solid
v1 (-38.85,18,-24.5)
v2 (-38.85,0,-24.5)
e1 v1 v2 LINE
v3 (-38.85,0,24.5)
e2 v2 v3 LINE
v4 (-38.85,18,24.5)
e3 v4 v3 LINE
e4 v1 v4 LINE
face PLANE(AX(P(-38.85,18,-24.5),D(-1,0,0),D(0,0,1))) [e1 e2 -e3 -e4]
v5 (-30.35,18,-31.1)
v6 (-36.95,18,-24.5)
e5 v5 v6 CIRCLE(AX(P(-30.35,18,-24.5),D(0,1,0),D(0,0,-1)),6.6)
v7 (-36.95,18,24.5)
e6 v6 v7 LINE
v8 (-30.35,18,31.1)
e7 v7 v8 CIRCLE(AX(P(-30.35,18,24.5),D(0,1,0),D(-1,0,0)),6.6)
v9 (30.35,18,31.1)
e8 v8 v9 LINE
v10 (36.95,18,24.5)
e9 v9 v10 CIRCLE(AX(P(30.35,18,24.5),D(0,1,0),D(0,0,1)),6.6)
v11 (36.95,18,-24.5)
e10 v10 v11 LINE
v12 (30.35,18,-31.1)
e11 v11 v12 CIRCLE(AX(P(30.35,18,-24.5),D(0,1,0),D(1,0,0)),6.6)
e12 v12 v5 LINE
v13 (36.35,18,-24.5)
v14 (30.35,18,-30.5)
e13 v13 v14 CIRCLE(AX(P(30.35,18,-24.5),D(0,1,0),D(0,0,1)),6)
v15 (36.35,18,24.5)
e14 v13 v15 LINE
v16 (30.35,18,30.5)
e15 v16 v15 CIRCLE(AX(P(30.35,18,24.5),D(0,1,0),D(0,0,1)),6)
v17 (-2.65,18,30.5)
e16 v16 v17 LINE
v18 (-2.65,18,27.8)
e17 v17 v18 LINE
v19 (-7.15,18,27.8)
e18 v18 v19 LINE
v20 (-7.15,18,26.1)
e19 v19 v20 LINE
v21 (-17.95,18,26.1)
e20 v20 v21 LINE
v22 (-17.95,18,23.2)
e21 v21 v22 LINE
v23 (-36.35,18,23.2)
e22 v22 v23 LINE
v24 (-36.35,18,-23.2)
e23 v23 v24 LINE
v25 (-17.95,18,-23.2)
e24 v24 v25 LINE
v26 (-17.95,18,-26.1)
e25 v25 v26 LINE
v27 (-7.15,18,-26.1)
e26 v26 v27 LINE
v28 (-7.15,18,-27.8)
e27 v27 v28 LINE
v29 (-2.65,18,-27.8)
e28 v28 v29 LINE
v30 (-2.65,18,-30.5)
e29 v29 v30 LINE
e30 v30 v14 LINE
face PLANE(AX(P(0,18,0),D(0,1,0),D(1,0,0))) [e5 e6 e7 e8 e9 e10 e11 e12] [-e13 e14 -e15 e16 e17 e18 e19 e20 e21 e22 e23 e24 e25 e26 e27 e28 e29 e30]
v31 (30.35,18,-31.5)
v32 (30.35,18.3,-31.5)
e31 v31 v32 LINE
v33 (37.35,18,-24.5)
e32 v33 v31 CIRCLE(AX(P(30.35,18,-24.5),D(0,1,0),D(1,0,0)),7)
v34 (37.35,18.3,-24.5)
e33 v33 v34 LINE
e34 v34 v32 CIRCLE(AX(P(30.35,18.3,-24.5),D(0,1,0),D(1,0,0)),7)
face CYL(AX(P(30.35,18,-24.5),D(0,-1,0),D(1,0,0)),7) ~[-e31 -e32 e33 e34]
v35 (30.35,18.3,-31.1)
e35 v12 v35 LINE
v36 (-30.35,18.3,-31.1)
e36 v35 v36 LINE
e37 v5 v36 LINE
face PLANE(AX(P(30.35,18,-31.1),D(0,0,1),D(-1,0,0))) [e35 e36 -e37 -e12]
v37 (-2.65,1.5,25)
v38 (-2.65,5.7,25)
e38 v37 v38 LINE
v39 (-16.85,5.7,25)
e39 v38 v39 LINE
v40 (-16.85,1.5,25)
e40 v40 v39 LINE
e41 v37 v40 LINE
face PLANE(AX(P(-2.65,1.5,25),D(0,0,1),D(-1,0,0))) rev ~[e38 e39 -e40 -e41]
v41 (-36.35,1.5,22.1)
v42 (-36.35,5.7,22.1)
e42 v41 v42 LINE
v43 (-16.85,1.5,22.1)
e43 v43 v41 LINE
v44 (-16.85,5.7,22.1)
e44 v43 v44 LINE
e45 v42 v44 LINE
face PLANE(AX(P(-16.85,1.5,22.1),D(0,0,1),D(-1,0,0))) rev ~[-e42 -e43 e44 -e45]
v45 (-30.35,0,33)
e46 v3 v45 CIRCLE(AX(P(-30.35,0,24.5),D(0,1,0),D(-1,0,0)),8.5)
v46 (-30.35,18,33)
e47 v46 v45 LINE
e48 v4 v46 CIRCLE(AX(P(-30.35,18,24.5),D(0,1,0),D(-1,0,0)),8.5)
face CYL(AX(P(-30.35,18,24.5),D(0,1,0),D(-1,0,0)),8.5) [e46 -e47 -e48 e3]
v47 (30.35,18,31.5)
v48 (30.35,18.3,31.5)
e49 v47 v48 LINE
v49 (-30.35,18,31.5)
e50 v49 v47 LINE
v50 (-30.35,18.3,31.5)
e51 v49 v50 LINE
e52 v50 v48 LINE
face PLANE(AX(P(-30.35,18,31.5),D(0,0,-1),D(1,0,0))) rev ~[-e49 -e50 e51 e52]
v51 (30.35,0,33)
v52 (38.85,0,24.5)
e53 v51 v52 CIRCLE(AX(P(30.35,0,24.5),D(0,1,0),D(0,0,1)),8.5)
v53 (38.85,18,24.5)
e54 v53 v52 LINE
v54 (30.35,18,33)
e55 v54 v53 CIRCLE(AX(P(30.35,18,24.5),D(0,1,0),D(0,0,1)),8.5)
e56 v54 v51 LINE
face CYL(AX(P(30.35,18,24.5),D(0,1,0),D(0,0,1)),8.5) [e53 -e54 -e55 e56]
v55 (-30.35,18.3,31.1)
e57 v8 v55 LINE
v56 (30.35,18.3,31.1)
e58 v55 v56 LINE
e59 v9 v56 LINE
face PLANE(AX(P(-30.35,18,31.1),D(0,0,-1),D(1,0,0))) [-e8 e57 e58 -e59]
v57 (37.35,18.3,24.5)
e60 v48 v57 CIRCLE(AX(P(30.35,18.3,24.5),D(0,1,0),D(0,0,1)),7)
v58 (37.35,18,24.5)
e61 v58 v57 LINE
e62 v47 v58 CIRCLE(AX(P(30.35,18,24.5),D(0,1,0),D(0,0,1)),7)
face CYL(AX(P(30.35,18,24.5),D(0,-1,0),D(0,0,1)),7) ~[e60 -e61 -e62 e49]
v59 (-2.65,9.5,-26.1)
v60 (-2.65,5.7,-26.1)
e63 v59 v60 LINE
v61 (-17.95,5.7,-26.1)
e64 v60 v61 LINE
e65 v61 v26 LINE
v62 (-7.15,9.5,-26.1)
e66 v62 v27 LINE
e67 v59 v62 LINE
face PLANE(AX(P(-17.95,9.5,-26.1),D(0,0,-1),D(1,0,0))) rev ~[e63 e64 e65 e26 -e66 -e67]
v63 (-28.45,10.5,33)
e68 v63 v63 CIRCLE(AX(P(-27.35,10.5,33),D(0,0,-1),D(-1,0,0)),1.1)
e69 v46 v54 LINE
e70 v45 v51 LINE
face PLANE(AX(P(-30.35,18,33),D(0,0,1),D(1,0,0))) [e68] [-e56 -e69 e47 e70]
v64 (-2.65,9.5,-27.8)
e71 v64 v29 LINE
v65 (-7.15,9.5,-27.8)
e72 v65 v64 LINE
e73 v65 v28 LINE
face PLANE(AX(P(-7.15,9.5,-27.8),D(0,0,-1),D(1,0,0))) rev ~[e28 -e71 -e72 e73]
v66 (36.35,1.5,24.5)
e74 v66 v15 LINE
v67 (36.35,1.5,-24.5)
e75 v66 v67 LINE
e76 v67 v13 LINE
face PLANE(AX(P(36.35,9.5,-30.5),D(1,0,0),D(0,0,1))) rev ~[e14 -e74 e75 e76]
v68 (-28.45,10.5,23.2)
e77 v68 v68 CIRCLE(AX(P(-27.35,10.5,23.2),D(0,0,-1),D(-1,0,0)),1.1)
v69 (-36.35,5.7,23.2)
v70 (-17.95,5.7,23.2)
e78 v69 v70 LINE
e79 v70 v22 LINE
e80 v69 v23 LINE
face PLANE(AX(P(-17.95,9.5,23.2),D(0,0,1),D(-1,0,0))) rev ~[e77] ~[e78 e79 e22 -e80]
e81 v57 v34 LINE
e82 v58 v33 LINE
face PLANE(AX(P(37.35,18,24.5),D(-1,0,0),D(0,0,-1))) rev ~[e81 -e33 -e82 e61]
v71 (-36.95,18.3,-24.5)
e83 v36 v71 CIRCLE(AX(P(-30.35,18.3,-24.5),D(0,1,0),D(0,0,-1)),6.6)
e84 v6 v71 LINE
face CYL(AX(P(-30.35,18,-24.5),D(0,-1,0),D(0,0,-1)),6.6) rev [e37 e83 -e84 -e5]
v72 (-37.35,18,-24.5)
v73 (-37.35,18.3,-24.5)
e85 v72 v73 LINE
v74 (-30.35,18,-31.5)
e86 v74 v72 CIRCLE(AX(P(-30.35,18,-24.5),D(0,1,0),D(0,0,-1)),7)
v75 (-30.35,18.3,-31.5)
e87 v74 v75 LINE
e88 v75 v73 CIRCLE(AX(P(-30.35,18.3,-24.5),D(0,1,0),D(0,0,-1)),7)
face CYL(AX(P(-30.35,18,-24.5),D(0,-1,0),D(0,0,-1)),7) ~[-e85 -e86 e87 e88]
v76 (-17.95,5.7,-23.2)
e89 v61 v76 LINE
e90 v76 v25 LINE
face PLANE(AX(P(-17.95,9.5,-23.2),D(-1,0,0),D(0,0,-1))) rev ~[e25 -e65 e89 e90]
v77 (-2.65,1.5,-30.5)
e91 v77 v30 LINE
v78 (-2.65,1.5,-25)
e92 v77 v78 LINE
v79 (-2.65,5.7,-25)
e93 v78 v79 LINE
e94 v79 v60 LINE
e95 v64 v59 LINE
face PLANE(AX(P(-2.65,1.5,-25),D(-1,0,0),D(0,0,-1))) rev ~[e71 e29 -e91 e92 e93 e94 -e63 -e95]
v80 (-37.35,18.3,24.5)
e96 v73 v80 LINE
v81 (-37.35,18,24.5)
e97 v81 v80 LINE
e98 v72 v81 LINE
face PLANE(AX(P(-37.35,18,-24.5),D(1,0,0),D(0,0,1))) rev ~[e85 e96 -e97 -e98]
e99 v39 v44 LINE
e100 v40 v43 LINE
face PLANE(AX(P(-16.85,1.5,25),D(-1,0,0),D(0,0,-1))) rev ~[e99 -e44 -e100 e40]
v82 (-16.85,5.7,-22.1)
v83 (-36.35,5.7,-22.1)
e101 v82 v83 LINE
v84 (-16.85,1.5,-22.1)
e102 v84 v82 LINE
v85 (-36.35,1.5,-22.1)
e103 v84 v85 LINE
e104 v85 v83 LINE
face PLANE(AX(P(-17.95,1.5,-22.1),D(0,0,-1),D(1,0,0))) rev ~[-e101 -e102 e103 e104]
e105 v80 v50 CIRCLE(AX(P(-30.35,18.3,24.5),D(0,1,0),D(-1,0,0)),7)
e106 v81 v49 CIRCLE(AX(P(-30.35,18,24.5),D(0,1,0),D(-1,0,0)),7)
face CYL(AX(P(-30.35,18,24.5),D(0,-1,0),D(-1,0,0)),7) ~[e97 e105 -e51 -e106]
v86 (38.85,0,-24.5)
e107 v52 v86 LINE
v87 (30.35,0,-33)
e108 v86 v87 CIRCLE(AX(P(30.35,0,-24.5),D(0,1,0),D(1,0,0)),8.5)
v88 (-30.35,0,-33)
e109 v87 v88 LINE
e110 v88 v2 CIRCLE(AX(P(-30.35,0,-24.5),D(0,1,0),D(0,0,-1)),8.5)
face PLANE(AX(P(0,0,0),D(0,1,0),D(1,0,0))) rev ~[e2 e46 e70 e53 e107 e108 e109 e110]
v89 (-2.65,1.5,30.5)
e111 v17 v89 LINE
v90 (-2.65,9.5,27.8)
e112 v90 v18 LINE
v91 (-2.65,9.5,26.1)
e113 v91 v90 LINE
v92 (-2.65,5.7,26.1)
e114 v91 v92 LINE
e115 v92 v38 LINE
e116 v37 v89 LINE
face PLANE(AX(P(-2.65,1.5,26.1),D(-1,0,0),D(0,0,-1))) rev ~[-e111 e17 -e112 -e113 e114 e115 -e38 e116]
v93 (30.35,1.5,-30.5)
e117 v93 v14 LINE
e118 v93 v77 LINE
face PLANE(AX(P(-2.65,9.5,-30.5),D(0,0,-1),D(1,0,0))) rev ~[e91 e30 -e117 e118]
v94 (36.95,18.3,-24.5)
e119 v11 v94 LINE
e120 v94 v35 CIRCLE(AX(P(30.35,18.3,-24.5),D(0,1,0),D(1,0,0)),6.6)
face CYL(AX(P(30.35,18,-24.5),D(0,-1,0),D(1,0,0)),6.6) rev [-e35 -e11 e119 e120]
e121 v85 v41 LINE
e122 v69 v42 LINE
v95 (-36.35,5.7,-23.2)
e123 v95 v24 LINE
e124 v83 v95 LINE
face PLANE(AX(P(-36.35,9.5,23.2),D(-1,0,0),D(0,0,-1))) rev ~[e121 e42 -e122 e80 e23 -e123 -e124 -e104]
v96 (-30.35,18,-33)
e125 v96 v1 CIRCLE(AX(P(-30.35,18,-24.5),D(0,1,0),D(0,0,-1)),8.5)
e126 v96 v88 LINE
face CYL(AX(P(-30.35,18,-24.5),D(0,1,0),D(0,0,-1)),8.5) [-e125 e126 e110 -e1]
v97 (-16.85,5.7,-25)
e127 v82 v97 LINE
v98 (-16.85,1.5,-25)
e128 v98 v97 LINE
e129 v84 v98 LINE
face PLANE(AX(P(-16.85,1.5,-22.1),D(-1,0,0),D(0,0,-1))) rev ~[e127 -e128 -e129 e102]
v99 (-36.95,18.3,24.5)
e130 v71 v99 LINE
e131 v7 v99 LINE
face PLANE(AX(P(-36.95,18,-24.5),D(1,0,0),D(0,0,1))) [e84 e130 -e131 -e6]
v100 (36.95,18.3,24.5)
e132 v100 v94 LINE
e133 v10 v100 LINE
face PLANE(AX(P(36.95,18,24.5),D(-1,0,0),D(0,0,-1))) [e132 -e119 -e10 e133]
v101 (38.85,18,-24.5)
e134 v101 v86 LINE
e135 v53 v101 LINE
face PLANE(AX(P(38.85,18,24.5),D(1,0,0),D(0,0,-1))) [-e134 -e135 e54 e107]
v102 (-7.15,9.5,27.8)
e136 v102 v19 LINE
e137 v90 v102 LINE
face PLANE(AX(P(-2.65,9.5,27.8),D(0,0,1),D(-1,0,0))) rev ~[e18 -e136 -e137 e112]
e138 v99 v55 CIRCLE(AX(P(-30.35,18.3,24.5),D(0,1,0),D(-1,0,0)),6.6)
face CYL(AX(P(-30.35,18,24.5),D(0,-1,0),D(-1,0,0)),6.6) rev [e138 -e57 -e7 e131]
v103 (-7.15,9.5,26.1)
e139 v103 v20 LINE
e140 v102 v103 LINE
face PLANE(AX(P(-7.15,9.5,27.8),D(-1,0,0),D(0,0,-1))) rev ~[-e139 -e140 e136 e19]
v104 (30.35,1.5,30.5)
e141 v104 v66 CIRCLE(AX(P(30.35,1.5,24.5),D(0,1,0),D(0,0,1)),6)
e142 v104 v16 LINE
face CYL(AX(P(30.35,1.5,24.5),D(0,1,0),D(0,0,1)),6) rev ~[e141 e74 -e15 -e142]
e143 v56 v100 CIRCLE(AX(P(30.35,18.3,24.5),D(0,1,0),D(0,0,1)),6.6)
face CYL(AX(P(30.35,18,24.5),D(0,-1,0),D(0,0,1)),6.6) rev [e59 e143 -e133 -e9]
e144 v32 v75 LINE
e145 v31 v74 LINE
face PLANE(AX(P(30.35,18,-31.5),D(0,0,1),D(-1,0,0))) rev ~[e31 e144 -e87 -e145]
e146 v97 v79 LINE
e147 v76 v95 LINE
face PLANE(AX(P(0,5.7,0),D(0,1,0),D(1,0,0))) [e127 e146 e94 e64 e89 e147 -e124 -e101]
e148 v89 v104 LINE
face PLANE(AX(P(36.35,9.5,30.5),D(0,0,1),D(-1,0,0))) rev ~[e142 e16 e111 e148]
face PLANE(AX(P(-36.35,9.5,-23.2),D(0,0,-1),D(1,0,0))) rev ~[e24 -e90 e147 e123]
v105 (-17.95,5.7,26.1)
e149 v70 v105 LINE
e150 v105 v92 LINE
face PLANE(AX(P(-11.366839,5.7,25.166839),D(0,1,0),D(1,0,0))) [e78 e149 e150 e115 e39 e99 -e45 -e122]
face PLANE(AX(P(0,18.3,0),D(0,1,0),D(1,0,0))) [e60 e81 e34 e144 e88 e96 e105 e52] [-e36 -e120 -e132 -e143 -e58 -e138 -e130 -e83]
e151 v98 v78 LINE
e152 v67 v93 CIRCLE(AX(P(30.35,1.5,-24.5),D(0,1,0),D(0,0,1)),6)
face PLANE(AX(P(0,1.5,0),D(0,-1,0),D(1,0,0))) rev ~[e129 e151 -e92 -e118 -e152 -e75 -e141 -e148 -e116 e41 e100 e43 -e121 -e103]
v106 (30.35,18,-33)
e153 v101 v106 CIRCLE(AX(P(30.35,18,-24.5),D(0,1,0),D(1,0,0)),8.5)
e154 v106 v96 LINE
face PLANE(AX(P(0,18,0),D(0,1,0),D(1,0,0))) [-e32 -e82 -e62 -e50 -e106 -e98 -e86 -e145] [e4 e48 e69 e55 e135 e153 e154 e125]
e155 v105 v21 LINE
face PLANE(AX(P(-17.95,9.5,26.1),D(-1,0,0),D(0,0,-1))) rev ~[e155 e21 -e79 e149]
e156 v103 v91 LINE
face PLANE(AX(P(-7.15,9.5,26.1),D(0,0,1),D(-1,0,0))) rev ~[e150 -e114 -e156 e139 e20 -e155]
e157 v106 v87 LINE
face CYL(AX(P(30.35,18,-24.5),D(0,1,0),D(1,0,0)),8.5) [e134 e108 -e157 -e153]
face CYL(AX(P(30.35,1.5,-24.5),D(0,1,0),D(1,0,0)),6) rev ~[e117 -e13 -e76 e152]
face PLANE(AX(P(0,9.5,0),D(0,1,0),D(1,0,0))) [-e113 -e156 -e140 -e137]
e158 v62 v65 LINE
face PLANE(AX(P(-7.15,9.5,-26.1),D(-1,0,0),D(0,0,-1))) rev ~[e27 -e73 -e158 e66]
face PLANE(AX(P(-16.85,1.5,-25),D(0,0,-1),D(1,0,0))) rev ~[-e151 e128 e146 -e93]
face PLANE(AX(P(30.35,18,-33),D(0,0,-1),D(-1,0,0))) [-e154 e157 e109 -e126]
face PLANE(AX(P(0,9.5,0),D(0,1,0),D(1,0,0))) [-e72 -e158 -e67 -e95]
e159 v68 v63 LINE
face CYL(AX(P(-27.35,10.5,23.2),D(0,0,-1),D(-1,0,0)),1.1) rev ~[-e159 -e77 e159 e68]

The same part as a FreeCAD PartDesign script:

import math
import FreeCAD as App
import Part
import Sketcher
from FreeCAD import Vector
Q = App.Units.Quantity


def edges_at(feature, points):
    """Names of the edges that pass closest to the given points."""
    edges = feature.Shape.Edges
    near = lambda p: min(range(len(edges)), key=lambda i: edges[i].distToShape(Part.Vertex(*p))[0])
    return sorted({f"Edge{near(p) + 1}" for p in points})

doc = App.newDocument("Part")
body = doc.addObject("PartDesign::Body", "Body")

sketch1 = body.newObject("Sketcher::SketchObject", "Sketch")
sketch1.AttachmentSupport = (doc.getObject("XZ_Plane"), [""])
sketch1.MapMode = "FlatFace"
sketch1.addGeometry([
    Part.LineSegment(Vector(-36, -30, 0), Vector(-36, 30, 0)),
    Part.LineSegment(Vector(-36, 30, 0), Vector(36, 30, 0)),
    Part.LineSegment(Vector(36, 30, 0), Vector(36, -30, 0)),
    Part.LineSegment(Vector(36, -30, 0), Vector(-36, -30, 0)),
], False)
sketch1.addConstraint([
    Sketcher.Constraint("Coincident", 0, 2, 1, 1),
    Sketcher.Constraint("Coincident", 1, 2, 2, 1),
    Sketcher.Constraint("Coincident", 2, 2, 3, 1),
    Sketcher.Constraint("Coincident", 3, 2, 0, 1),
    Sketcher.Constraint("Vertical", 0),
    Sketcher.Constraint("Horizontal", 1),
    Sketcher.Constraint("Vertical", 2),
    Sketcher.Constraint("Horizontal", 3),
    Sketcher.Constraint("Symmetric", 0, 2, 2, 2, -1, 1),
    Sketcher.Constraint("DistanceY", 0, 1, 0, 2, Q("61 mm")),
    Sketcher.Constraint("DistanceX", 1, 1, 1, 2, Q("72.7 mm")),
])
pad1 = body.newObject("PartDesign::Pad", "Pad")
pad1.Profile = sketch1
pad1.Length = 1.5
pad1.Reversed = True

sketch2 = body.newObject("Sketcher::SketchObject", "Sketch001")
sketch2.AttachmentSupport = (doc.getObject("XZ_Plane"), [""])
sketch2.MapMode = "FlatFace"
sketch2.addGeometry([
    Part.LineSegment(Vector(-38, 32, 0), Vector(-38, -32, 0)),
    Part.LineSegment(Vector(-38, -32, 0), Vector(38, -32, 0)),
    Part.LineSegment(Vector(38, -32, 0), Vector(38, 32, 0)),
    Part.LineSegment(Vector(38, 32, 0), Vector(-38, 32, 0)),
], False)
sketch2.addConstraint([
    Sketcher.Constraint("Coincident", 0, 2, 1, 1),
    Sketcher.Constraint("Coincident", 1, 2, 2, 1),
    Sketcher.Constraint("Coincident", 2, 2, 3, 1),
    Sketcher.Constraint("Coincident", 3, 2, 0, 1),
    Sketcher.Constraint("Vertical", 0),
    Sketcher.Constraint("Horizontal", 1),
    Sketcher.Constraint("Vertical", 2),
    Sketcher.Constraint("Horizontal", 3),
    Sketcher.Constraint("Symmetric", 0, 2, 2, 2, -1, 1),
    Sketcher.Constraint("DistanceY", 0, 2, 0, 1, Q("65 mm")),
    Sketcher.Constraint("DistanceX", 1, 1, 1, 2, Q("76.7 mm")),
])
pad2 = body.newObject("PartDesign::Pad", "Pad001")
pad2.Profile = sketch2
pad2.Length = 1.5
pad2.Reversed = True

sketch3 = body.newObject("Sketcher::SketchObject", "Sketch002")
sketch3.AttachmentSupport = (doc.getObject("XZ_Plane"), [""])
sketch3.MapMode = "FlatFace"
sketch3.AttachmentOffset = App.Placement(Vector(0, 0, -1.5), App.Rotation())
sketch3.addGeometry([
    Part.LineSegment(Vector(-38.4, -32.5, 0), Vector(-38.4, 32.5, 0)),
    Part.LineSegment(Vector(-38.4, 32.5, 0), Vector(38.4, 32.5, 0)),
    Part.LineSegment(Vector(38.4, 32.5, 0), Vector(38.4, -32.5, 0)),
    Part.LineSegment(Vector(38.4, -32.5, 0), Vector(-38.4, -32.5, 0)),
    Part.LineSegment(Vector(-2.6, -22.1, 0), Vector(-2.6, -30.5, 0)),
    Part.LineSegment(Vector(-2.6, -30.5, 0), Vector(36.4, -30.5, 0)),
    Part.LineSegment(Vector(36.4, -30.5, 0), Vector(36.4, 30.5, 0)),
    Part.LineSegment(Vector(36.4, 30.5, 0), Vector(-2.6, 30.5, 0)),
    Part.LineSegment(Vector(-2.6, 30.5, 0), Vector(-2.6, 22.1, 0)),
    Part.LineSegment(Vector(-2.6, 22.1, 0), Vector(-3.9, 22.1, 0)),
    Part.LineSegment(Vector(-3.9, 22.1, 0), Vector(-3.9, 26.1, 0)),
    Part.LineSegment(Vector(-3.9, 26.1, 0), Vector(-17.9, 26.1, 0)),
    Part.LineSegment(Vector(-17.9, 26.1, 0), Vector(-17.9, 22.1, 0)),
    Part.LineSegment(Vector(-17.9, 22.1, 0), Vector(-36.4, 22.1, 0)),
    Part.LineSegment(Vector(-36.4, 22.1, 0), Vector(-36.4, -22.1, 0)),
    Part.LineSegment(Vector(-36.4, -22.1, 0), Vector(-17.9, -22.1, 0)),
    Part.LineSegment(Vector(-17.9, -22.1, 0), Vector(-17.9, -26.1, 0)),
    Part.LineSegment(Vector(-17.9, -26.1, 0), Vector(-3.9, -26.1, 0)),
    Part.LineSegment(Vector(-3.9, -26.1, 0), Vector(-3.9, -22.1, 0)),
    Part.LineSegment(Vector(-3.9, -22.1, 0), Vector(-2.6, -22.1, 0)),
], False)
sketch3.addConstraint([
    Sketcher.Constraint("Coincident", 0, 2, 1, 1),
    Sketcher.Constraint("Coincident", 1, 2, 2, 1),
    Sketcher.Constraint("Coincident", 2, 2, 3, 1),
    Sketcher.Constraint("Coincident", 3, 2, 0, 1),
    Sketcher.Constraint("Coincident", 4, 2, 5, 1),
    Sketcher.Constraint("Coincident", 5, 2, 6, 1),
    Sketcher.Constraint("Coincident", 6, 2, 7, 1),
    Sketcher.Constraint("Coincident", 7, 2, 8, 1),
    Sketcher.Constraint("Coincident", 8, 2, 9, 1),
    Sketcher.Constraint("Coincident", 9, 2, 10, 1),
    Sketcher.Constraint("Coincident", 10, 2, 11, 1),
    Sketcher.Constraint("Coincident", 11, 2, 12, 1),
    Sketcher.Constraint("Coincident", 12, 2, 13, 1),
    Sketcher.Constraint("Coincident", 13, 2, 14, 1),
    Sketcher.Constraint("Coincident", 14, 2, 15, 1),
    Sketcher.Constraint("Coincident", 15, 2, 16, 1),
    Sketcher.Constraint("Coincident", 16, 2, 17, 1),
    Sketcher.Constraint("Coincident", 17, 2, 18, 1),
    Sketcher.Constraint("Coincident", 18, 2, 19, 1),
    Sketcher.Constraint("Coincident", 19, 2, 4, 1),
    Sketcher.Constraint("Vertical", 0),
    Sketcher.Constraint("Horizontal", 1),
    Sketcher.Constraint("Vertical", 2),
    Sketcher.Constraint("Horizontal", 3),
    Sketcher.Constraint("Vertical", 4),
    Sketcher.Constraint("Horizontal", 5),
    Sketcher.Constraint("Vertical", 6),
    Sketcher.Constraint("Horizontal", 7),
    Sketcher.Constraint("Vertical", 8),
    Sketcher.Constraint("Horizontal", 9),
    Sketcher.Constraint("Vertical", 10),
    Sketcher.Constraint("Horizontal", 11),
    Sketcher.Constraint("Vertical", 12),
    Sketcher.Constraint("Horizontal", 13),
    Sketcher.Constraint("Vertical", 14),
    Sketcher.Constraint("Horizontal", 15),
    Sketcher.Constraint("Vertical", 16),
    Sketcher.Constraint("Horizontal", 17),
    Sketcher.Constraint("Vertical", 18),
    Sketcher.Constraint("Horizontal", 19),
    Sketcher.Constraint("Symmetric", 0, 2, 2, 2, -1, 1),
    Sketcher.Constraint("Symmetric", 4, 2, 7, 2, -1),
    Sketcher.Constraint("Symmetric", 12, 2, 15, 2, -1),
    Sketcher.Constraint("Symmetric", 10, 2, 17, 2, -1),
    Sketcher.Constraint("Horizontal", 9, 2, 12, 2),
    Sketcher.Constraint("Horizontal", 15, 2, 18, 2),
    Sketcher.Constraint("DistanceX", 5, 1, 5, 2, Q("39 mm")),
    Sketcher.Constraint("DistanceY", 0, 1, 0, 2, Q("65 mm")),
    Sketcher.Constraint("DistanceY", 6, 1, 6, 2, Q("61 mm")),
    Sketcher.Constraint("DistanceY", 10, 1, 10, 2, Q("4 mm")),
    Sketcher.Constraint("DistanceX", 1, 1, 1, 2, Q("76.7 mm")),
    Sketcher.Constraint("DistanceX", 9, 2, 9, 1, Q("1.2 mm")),
    Sketcher.Constraint("DistanceX", 11, 2, 11, 1, Q("14.1 mm")),
    Sketcher.Constraint("DistanceX", 13, 2, 13, 1, Q("18.4 mm")),
    Sketcher.Constraint("DistanceY", 4, 2, 4, 1, Q("8.4 mm")),
    Sketcher.Constraint("DistanceX", 4, 2, 2, 2, Q("41 mm")),
])
pad3 = body.newObject("PartDesign::Pad", "Pad002")
pad3.Profile = sketch3
pad3.Length = 4.2
pad3.Reversed = True

sketch4 = body.newObject("Sketcher::SketchObject", "Sketch003")
sketch4.AttachmentSupport = (doc.getObject("XZ_Plane"), [""])
sketch4.MapMode = "FlatFace"
sketch4.AttachmentOffset = App.Placement(Vector(0, 0, -5.7), App.Rotation())
sketch4.addGeometry([
    Part.LineSegment(Vector(-38.4, -32.5, 0), Vector(-38.4, 32.5, 0)),
    Part.LineSegment(Vector(-38.4, 32.5, 0), Vector(38.4, 32.5, 0)),
    Part.LineSegment(Vector(38.4, 32.5, 0), Vector(38.4, -32.5, 0)),
    Part.LineSegment(Vector(38.4, -32.5, 0), Vector(-38.4, -32.5, 0)),
    Part.LineSegment(Vector(-36.4, 23.2, 0), Vector(-36.4, -23.2, 0)),
    Part.LineSegment(Vector(-36.4, -23.2, 0), Vector(-17.9, -23.2, 0)),
    Part.LineSegment(Vector(-17.9, -23.2, 0), Vector(-17.9, -26.1, 0)),
    Part.LineSegment(Vector(-17.9, -26.1, 0), Vector(-3.9, -26.1, 0)),
    Part.LineSegment(Vector(-3.9, -26.1, 0), Vector(-3.9, -22.1, 0)),
    Part.LineSegment(Vector(-3.9, -22.1, 0), Vector(-2.6, -22.1, 0)),
    Part.LineSegment(Vector(-2.6, -22.1, 0), Vector(-2.6, -30.5, 0)),
    Part.LineSegment(Vector(-2.6, -30.5, 0), Vector(36.4, -30.5, 0)),
    Part.LineSegment(Vector(36.4, -30.5, 0), Vector(36.4, 30.5, 0)),
    Part.LineSegment(Vector(36.4, 30.5, 0), Vector(-2.6, 30.5, 0)),
    Part.LineSegment(Vector(-2.6, 30.5, 0), Vector(-2.6, 22.1, 0)),
    Part.LineSegment(Vector(-2.6, 22.1, 0), Vector(-3.9, 22.1, 0)),
    Part.LineSegment(Vector(-3.9, 22.1, 0), Vector(-3.9, 26.1, 0)),
    Part.LineSegment(Vector(-3.9, 26.1, 0), Vector(-17.9, 26.1, 0)),
    Part.LineSegment(Vector(-17.9, 26.1, 0), Vector(-17.9, 23.2, 0)),
    Part.LineSegment(Vector(-17.9, 23.2, 0), Vector(-36.4, 23.2, 0)),
], False)
sketch4.addConstraint([
    Sketcher.Constraint("Coincident", 0, 2, 1, 1),
    Sketcher.Constraint("Coincident", 1, 2, 2, 1),
    Sketcher.Constraint("Coincident", 2, 2, 3, 1),
    Sketcher.Constraint("Coincident", 3, 2, 0, 1),
    Sketcher.Constraint("Coincident", 4, 2, 5, 1),
    Sketcher.Constraint("Coincident", 5, 2, 6, 1),
    Sketcher.Constraint("Coincident", 6, 2, 7, 1),
    Sketcher.Constraint("Coincident", 7, 2, 8, 1),
    Sketcher.Constraint("Coincident", 8, 2, 9, 1),
    Sketcher.Constraint("Coincident", 9, 2, 10, 1),
    Sketcher.Constraint("Coincident", 10, 2, 11, 1),
    Sketcher.Constraint("Coincident", 11, 2, 12, 1),
    Sketcher.Constraint("Coincident", 12, 2, 13, 1),
    Sketcher.Constraint("Coincident", 13, 2, 14, 1),
    Sketcher.Constraint("Coincident", 14, 2, 15, 1),
    Sketcher.Constraint("Coincident", 15, 2, 16, 1),
    Sketcher.Constraint("Coincident", 16, 2, 17, 1),
    Sketcher.Constraint("Coincident", 17, 2, 18, 1),
    Sketcher.Constraint("Coincident", 18, 2, 19, 1),
    Sketcher.Constraint("Coincident", 19, 2, 4, 1),
    Sketcher.Constraint("Vertical", 0),
    Sketcher.Constraint("Horizontal", 1),
    Sketcher.Constraint("Vertical", 2),
    Sketcher.Constraint("Horizontal", 3),
    Sketcher.Constraint("Vertical", 4),
    Sketcher.Constraint("Horizontal", 5),
    Sketcher.Constraint("Vertical", 6),
    Sketcher.Constraint("Horizontal", 7),
    Sketcher.Constraint("Vertical", 8),
    Sketcher.Constraint("Horizontal", 9),
    Sketcher.Constraint("Vertical", 10),
    Sketcher.Constraint("Horizontal", 11),
    Sketcher.Constraint("Vertical", 12),
    Sketcher.Constraint("Horizontal", 13),
    Sketcher.Constraint("Vertical", 14),
    Sketcher.Constraint("Horizontal", 15),
    Sketcher.Constraint("Vertical", 16),
    Sketcher.Constraint("Horizontal", 17),
    Sketcher.Constraint("Vertical", 18),
    Sketcher.Constraint("Horizontal", 19),
    Sketcher.Constraint("Symmetric", 0, 2, 2, 2, -1, 1),
    Sketcher.Constraint("Symmetric", 10, 2, 13, 2, -1),
    Sketcher.Constraint("Symmetric", 8, 2, 15, 2, -1),
    Sketcher.Constraint("Symmetric", 6, 2, 17, 2, -1),
    Sketcher.Constraint("Equal", 6, 18),
    Sketcher.Constraint("DistanceX", 11, 1, 11, 2, Q("39 mm")),
    Sketcher.Constraint("DistanceY", 0, 1, 0, 2, Q("65 mm")),
    Sketcher.Constraint("DistanceY", 8, 1, 8, 2, Q("4 mm")),
    Sketcher.Constraint("DistanceY", 12, 1, 12, 2, Q("61 mm")),
    Sketcher.Constraint("DistanceX", 1, 1, 1, 2, Q("76.7 mm")),
    Sketcher.Constraint("DistanceX", 5, 1, 5, 2, Q("18.4 mm")),
    Sketcher.Constraint("DistanceX", 7, 1, 7, 2, Q("14.1 mm")),
    Sketcher.Constraint("DistanceX", 9, 1, 9, 2, Q("1.2 mm")),
    Sketcher.Constraint("DistanceY", 4, 2, 4, 1, Q("46.4 mm")),
    Sketcher.Constraint("DistanceY", 6, 2, 6, 1, Q("2.9 mm")),
    Sketcher.Constraint("DistanceX", 3, 2, 4, 2, Q("2 mm")),
])
pad4 = body.newObject("PartDesign::Pad", "Pad003")
pad4.Profile = sketch4
pad4.Length = 3.8
pad4.Reversed = True

sketch5 = body.newObject("Sketcher::SketchObject", "Sketch004")
sketch5.AttachmentSupport = (doc.getObject("XZ_Plane"), [""])
sketch5.MapMode = "FlatFace"
sketch5.AttachmentOffset = App.Placement(Vector(0, 0, -9.5), App.Rotation())
sketch5.addGeometry([
    Part.LineSegment(Vector(-38.4, -32.5, 0), Vector(-38.4, 32.5, 0)),
    Part.LineSegment(Vector(-38.4, 32.5, 0), Vector(38.4, 32.5, 0)),
    Part.LineSegment(Vector(38.4, 32.5, 0), Vector(38.4, -32.5, 0)),
    Part.LineSegment(Vector(38.4, -32.5, 0), Vector(-38.4, -32.5, 0)),
    Part.LineSegment(Vector(-2.6, 30.5, 0), Vector(-2.6, 27.8, 0)),
    Part.LineSegment(Vector(-2.6, 27.8, 0), Vector(-7.2, 27.8, 0)),
    Part.LineSegment(Vector(-7.2, 27.8, 0), Vector(-7.2, 26.1, 0)),
    Part.LineSegment(Vector(-7.2, 26.1, 0), Vector(-17.9, 26.1, 0)),
    Part.LineSegment(Vector(-17.9, 26.1, 0), Vector(-17.9, 23.2, 0)),
    Part.LineSegment(Vector(-17.9, 23.2, 0), Vector(-36.4, 23.2, 0)),
    Part.LineSegment(Vector(-36.4, 23.2, 0), Vector(-36.4, -23.2, 0)),
    Part.LineSegment(Vector(-36.4, -23.2, 0), Vector(-17.9, -23.2, 0)),
    Part.LineSegment(Vector(-17.9, -23.2, 0), Vector(-17.9, -26.1, 0)),
    Part.LineSegment(Vector(-17.9, -26.1, 0), Vector(-7.2, -26.1, 0)),
    Part.LineSegment(Vector(-7.2, -26.1, 0), Vector(-7.2, -27.8, 0)),
    Part.LineSegment(Vector(-7.2, -27.8, 0), Vector(-2.6, -27.8, 0)),
    Part.LineSegment(Vector(-2.6, -27.8, 0), Vector(-2.6, -30.5, 0)),
    Part.LineSegment(Vector(-2.6, -30.5, 0), Vector(36.4, -30.5, 0)),
    Part.LineSegment(Vector(36.4, -30.5, 0), Vector(36.4, 30.5, 0)),
    Part.LineSegment(Vector(36.4, 30.5, 0), Vector(-2.6, 30.5, 0)),
], False)
sketch5.addConstraint([
    Sketcher.Constraint("Coincident", 0, 2, 1, 1),
    Sketcher.Constraint("Coincident", 1, 2, 2, 1),
    Sketcher.Constraint("Coincident", 2, 2, 3, 1),
    Sketcher.Constraint("Coincident", 3, 2, 0, 1),
    Sketcher.Constraint("Coincident", 4, 2, 5, 1),
    Sketcher.Constraint("Coincident", 5, 2, 6, 1),
    Sketcher.Constraint("Coincident", 6, 2, 7, 1),
    Sketcher.Constraint("Coincident", 7, 2, 8, 1),
    Sketcher.Constraint("Coincident", 8, 2, 9, 1),
    Sketcher.Constraint("Coincident", 9, 2, 10, 1),
    Sketcher.Constraint("Coincident", 10, 2, 11, 1),
    Sketcher.Constraint("Coincident", 11, 2, 12, 1),
    Sketcher.Constraint("Coincident", 12, 2, 13, 1),
    Sketcher.Constraint("Coincident", 13, 2, 14, 1),
    Sketcher.Constraint("Coincident", 14, 2, 15, 1),
    Sketcher.Constraint("Coincident", 15, 2, 16, 1),
    Sketcher.Constraint("Coincident", 16, 2, 17, 1),
    Sketcher.Constraint("Coincident", 17, 2, 18, 1),
    Sketcher.Constraint("Coincident", 18, 2, 19, 1),
    Sketcher.Constraint("Coincident", 19, 2, 4, 1),
    Sketcher.Constraint("Vertical", 0),
    Sketcher.Constraint("Horizontal", 1),
    Sketcher.Constraint("Vertical", 2),
    Sketcher.Constraint("Horizontal", 3),
    Sketcher.Constraint("Vertical", 4),
    Sketcher.Constraint("Horizontal", 5),
    Sketcher.Constraint("Vertical", 6),
    Sketcher.Constraint("Horizontal", 7),
    Sketcher.Constraint("Vertical", 8),
    Sketcher.Constraint("Horizontal", 9),
    Sketcher.Constraint("Vertical", 10),
    Sketcher.Constraint("Horizontal", 11),
    Sketcher.Constraint("Vertical", 12),
    Sketcher.Constraint("Horizontal", 13),
    Sketcher.Constraint("Vertical", 14),
    Sketcher.Constraint("Horizontal", 15),
    Sketcher.Constraint("Vertical", 16),
    Sketcher.Constraint("Horizontal", 17),
    Sketcher.Constraint("Vertical", 18),
    Sketcher.Constraint("Horizontal", 19),
    Sketcher.Constraint("Symmetric", 0, 2, 2, 2, -1, 1),
    Sketcher.Constraint("Symmetric", 8, 2, 11, 2, -1),
    Sketcher.Constraint("Symmetric", 6, 2, 13, 2, -1),
    Sketcher.Constraint("Symmetric", 4, 2, 15, 2, -1),
    Sketcher.Constraint("Equal", 4, 16),
    Sketcher.Constraint("DistanceX", 17, 1, 17, 2, Q("39 mm")),
    Sketcher.Constraint("DistanceY", 0, 1, 0, 2, Q("65 mm")),
    Sketcher.Constraint("DistanceY", 18, 1, 18, 2, Q("61 mm")),
    Sketcher.Constraint("DistanceX", 1, 1, 1, 2, Q("76.7 mm")),
    Sketcher.Constraint("DistanceX", 5, 2, 5, 1, Q("4.5 mm")),
    Sketcher.Constraint("DistanceX", 7, 2, 7, 1, Q("10.8 mm")),
    Sketcher.Constraint("DistanceX", 9, 2, 9, 1, Q("18.4 mm")),
    Sketcher.Constraint("DistanceY", 4, 2, 4, 1, Q("2.7 mm")),
    Sketcher.Constraint("DistanceY", 6, 2, 6, 1, Q("1.7 mm")),
    Sketcher.Constraint("DistanceY", 8, 2, 8, 1, Q("2.9 mm")),
    Sketcher.Constraint("DistanceX", 4, 2, 1, 2, Q("41 mm")),
])
pad5 = body.newObject("PartDesign::Pad", "Pad004")
pad5.Profile = sketch5
pad5.Length = 8.5
pad5.Reversed = True

sketch6 = body.newObject("Sketcher::SketchObject", "Sketch005")
sketch6.AttachmentSupport = (doc.getObject("XY_Plane"), [""])
sketch6.MapMode = "FlatFace"
sketch6.AttachmentOffset = App.Placement(Vector(0, 0, 23.2), App.Rotation())
sketch6.addGeometry(Part.Circle(Vector(-27.4, 10.5, 0), Vector(0, 0, 1), 1.1), False)
sketch6.addConstraint([
    Sketcher.Constraint("Diameter", 0, Q("2.2 mm")),
    Sketcher.Constraint("DistanceY", -1, 1, 0, 3, Q("10.5 mm")),
    Sketcher.Constraint("DistanceX", 0, 3, -1, 1, Q("27.35 mm")),
])
pocket1 = body.newObject("PartDesign::Pocket", "Pocket")
pocket1.Profile = sketch6
pocket1.Length = 20.8
pocket1.Reversed = True
doc.recompute()

fillet = body.newObject("PartDesign::Fillet", "Fillet")
fillet.Base = (pocket1, edges_at(pocket1, [(-38.35, 9, -32.5), (-38.35, 9, 32.5)]))
fillet.Radius = 8

sketch7 = body.newObject("Sketcher::SketchObject", "Sketch006")
sketch7.AttachmentSupport = (doc.getObject("XZ_Plane"), [""])
sketch7.MapMode = "FlatFace"
sketch7.AttachmentOffset = App.Placement(Vector(0, 0, -9.5), App.Rotation())
sketch7.addGeometry([
    Part.LineSegment(Vector(-3.9, -26.1, 0), Vector(-3.9, -22.1, 0)),
    Part.LineSegment(Vector(-3.9, -22.1, 0), Vector(-2.6, -22.1, 0)),
    Part.LineSegment(Vector(-2.6, -22.1, 0), Vector(-2.6, -26.1, 0)),
    Part.LineSegment(Vector(-2.6, -26.1, 0), Vector(-3.9, -26.1, 0)),
    Part.LineSegment(Vector(-3.9, 22.1, 0), Vector(-3.9, 26.1, 0)),
    Part.LineSegment(Vector(-3.9, 26.1, 0), Vector(-2.6, 26.1, 0)),
    Part.LineSegment(Vector(-2.6, 26.1, 0), Vector(-2.6, 22.1, 0)),
    Part.LineSegment(Vector(-2.6, 22.1, 0), Vector(-3.9, 22.1, 0)),
], False)
sketch7.addConstraint([
    Sketcher.Constraint("Coincident", 0, 2, 1, 1),
    Sketcher.Constraint("Coincident", 1, 2, 2, 1),
    Sketcher.Constraint("Coincident", 2, 2, 3, 1),
    Sketcher.Constraint("Coincident", 3, 2, 0, 1),
    Sketcher.Constraint("Coincident", 4, 2, 5, 1),
    Sketcher.Constraint("Coincident", 5, 2, 6, 1),
    Sketcher.Constraint("Coincident", 6, 2, 7, 1),
    Sketcher.Constraint("Coincident", 7, 2, 4, 1),
    Sketcher.Constraint("Vertical", 0),
    Sketcher.Constraint("Horizontal", 1),
    Sketcher.Constraint("Vertical", 2),
    Sketcher.Constraint("Horizontal", 3),
    Sketcher.Constraint("Vertical", 4),
    Sketcher.Constraint("Horizontal", 5),
    Sketcher.Constraint("Vertical", 6),
    Sketcher.Constraint("Horizontal", 7),
    Sketcher.Constraint("Symmetric", 3, 2, 4, 2, -1),
    Sketcher.Constraint("Symmetric", 1, 2, 6, 2, -1),
    Sketcher.Constraint("DistanceY", 0, 1, 0, 2, Q("4 mm")),
    Sketcher.Constraint("DistanceX", 1, 1, 1, 2, Q("1.2 mm")),
    Sketcher.Constraint("DistanceY", 0, 2, -1, 1, Q("22.1 mm")),
    Sketcher.Constraint("DistanceX", 0, 2, -1, 1, Q("3.85 mm")),
])
pocket2 = body.newObject("PartDesign::Pocket", "Pocket001")
pocket2.Profile = sketch7
pocket2.Length = 8
pocket2.Reversed = True

sketch8 = body.newObject("Sketcher::SketchObject", "Sketch007")
sketch8.AttachmentSupport = (doc.getObject("XZ_Plane"), [""])
sketch8.MapMode = "FlatFace"
sketch8.AttachmentOffset = App.Placement(Vector(0, 0, -1.5), App.Rotation())
sketch8.addGeometry([
    Part.LineSegment(Vector(-16.9, 22.1, 0), Vector(-17.9, 22.1, 0)),
    Part.LineSegment(Vector(-17.9, 22.1, 0), Vector(-17.9, 26.1, 0)),
    Part.LineSegment(Vector(-17.9, 26.1, 0), Vector(-2.6, 26.1, 0)),
    Part.LineSegment(Vector(-2.6, 26.1, 0), Vector(-2.6, 25, 0)),
    Part.LineSegment(Vector(-2.6, 25, 0), Vector(-16.9, 25, 0)),
    Part.LineSegment(Vector(-16.9, 25, 0), Vector(-16.9, 22.1, 0)),
    Part.LineSegment(Vector(-17.9, -26.1, 0), Vector(-17.9, -22.1, 0)),
    Part.LineSegment(Vector(-17.9, -22.1, 0), Vector(-16.9, -22.1, 0)),
    Part.LineSegment(Vector(-16.9, -22.1, 0), Vector(-16.9, -25, 0)),
    Part.LineSegment(Vector(-16.9, -25, 0), Vector(-2.6, -25, 0)),
    Part.LineSegment(Vector(-2.6, -25, 0), Vector(-2.6, -26.1, 0)),
    Part.LineSegment(Vector(-2.6, -26.1, 0), Vector(-17.9, -26.1, 0)),
], False)
sketch8.addConstraint([
    Sketcher.Constraint("Coincident", 0, 2, 1, 1),
    Sketcher.Constraint("Coincident", 1, 2, 2, 1),
    Sketcher.Constraint("Coincident", 2, 2, 3, 1),
    Sketcher.Constraint("Coincident", 3, 2, 4, 1),
    Sketcher.Constraint("Coincident", 4, 2, 5, 1),
    Sketcher.Constraint("Coincident", 5, 2, 0, 1),
    Sketcher.Constraint("Coincident", 6, 2, 7, 1),
    Sketcher.Constraint("Coincident", 7, 2, 8, 1),
    Sketcher.Constraint("Coincident", 8, 2, 9, 1),
    Sketcher.Constraint("Coincident", 9, 2, 10, 1),
    Sketcher.Constraint("Coincident", 10, 2, 11, 1),
    Sketcher.Constraint("Coincident", 11, 2, 6, 1),
    Sketcher.Constraint("Horizontal", 0),
    Sketcher.Constraint("Vertical", 1),
    Sketcher.Constraint("Horizontal", 2),
    Sketcher.Constraint("Vertical", 3),
    Sketcher.Constraint("Horizontal", 4),
    Sketcher.Constraint("Vertical", 5),
    Sketcher.Constraint("Vertical", 6),
    Sketcher.Constraint("Horizontal", 7),
    Sketcher.Constraint("Vertical", 8),
    Sketcher.Constraint("Horizontal", 9),
    Sketcher.Constraint("Vertical", 10),
    Sketcher.Constraint("Horizontal", 11),
    Sketcher.Constraint("Symmetric", 0, 2, 6, 2, -1),
    Sketcher.Constraint("Symmetric", 4, 2, 8, 2, -1),
    Sketcher.Constraint("Symmetric", 2, 2, 10, 2, -1),
    Sketcher.Constraint("Equal", 7, 3),
    Sketcher.Constraint("DistanceY", 1, 1, 1, 2, Q("4 mm")),
    Sketcher.Constraint("DistanceX", 0, 2, 0, 1, Q("1.1 mm")),
    Sketcher.Constraint("DistanceX", 2, 1, 2, 2, Q("15.3 mm")),
    Sketcher.Constraint("DistanceY", -1, 1, 3, 2, Q("25 mm")),
    Sketcher.Constraint("DistanceX", 0, 2, -1, 1, Q("17.95 mm")),
])
pad6 = body.newObject("PartDesign::Pad", "Pad005")
pad6.Profile = sketch8
pad6.Length = 4.2
pad6.Reversed = True
doc.recompute()

fillet2 = body.newObject("PartDesign::Fillet", "Fillet001")
fillet2.Base = (pad6, edges_at(pad6, [(36.35, 9.75, -30.5), (36.35, 9.75, 30.5)]))
fillet2.Radius = 6
doc.recompute()

fillet3 = body.newObject("PartDesign::Fillet", "Fillet002")
fillet3.Base = (fillet2, edges_at(fillet2, [(38.35, 9, -32.5), (38.35, 9, 32.5)]))
fillet3.Radius = 8

sketch9 = body.newObject("Sketcher::SketchObject", "Sketch008")
sketch9.AttachmentSupport = (doc.getObject("XZ_Plane"), [""])
sketch9.MapMode = "FlatFace"
sketch9.AttachmentOffset = App.Placement(Vector(0, 0, -18), App.Rotation())
sketch9.addGeometry([
    Part.LineSegment(Vector(-30, 33, 0), Vector(30, 33, 0)),
    Part.ArcOfCircle(Part.Circle(Vector(30, 24, 0), Vector(0, 0, 1), 8), math.radians(0), math.radians(90)),
    Part.LineSegment(Vector(39, 24, 0), Vector(39, -24, 0)),
    Part.ArcOfCircle(Part.Circle(Vector(30, -24, 0), Vector(0, 0, 1), 8), math.radians(-90), math.radians(0)),
    Part.LineSegment(Vector(30, -33, 0), Vector(-30, -33, 0)),
    Part.ArcOfCircle(Part.Circle(Vector(-30, -24, 0), Vector(0, 0, 1), 8), math.radians(180), math.radians(270)),
    Part.LineSegment(Vector(-39, -24, 0), Vector(-39, 24, 0)),
    Part.ArcOfCircle(Part.Circle(Vector(-30, 24, 0), Vector(0, 0, 1), 8), math.radians(90), math.radians(180)),
    Part.LineSegment(Vector(38, -24, 0), Vector(38, 24, 0)),
    Part.ArcOfCircle(Part.Circle(Vector(30, 24, 0), Vector(0, 0, 1), 8), math.radians(0), math.radians(90)),
    Part.LineSegment(Vector(30, 32, 0), Vector(-30, 32, 0)),
    Part.ArcOfCircle(Part.Circle(Vector(-30, 24, 0), Vector(0, 0, 1), 8), math.radians(90), math.radians(180)),
    Part.LineSegment(Vector(-38, 24, 0), Vector(-38, -24, 0)),
    Part.ArcOfCircle(Part.Circle(Vector(-30, -24, 0), Vector(0, 0, 1), 8), math.radians(-180), math.radians(-90)),
    Part.LineSegment(Vector(-30, -32, 0), Vector(30, -32, 0)),
    Part.ArcOfCircle(Part.Circle(Vector(30, -24, 0), Vector(0, 0, 1), 8), math.radians(-90), math.radians(0)),
], False)
sketch9.addConstraint([
    Sketcher.Constraint("Tangent", 0, 2, 1, 2),
    Sketcher.Constraint("Tangent", 1, 1, 2, 1),
    Sketcher.Constraint("Tangent", 2, 2, 3, 2),
    Sketcher.Constraint("Tangent", 3, 1, 4, 1),
    Sketcher.Constraint("Tangent", 4, 2, 5, 2),
    Sketcher.Constraint("Tangent", 5, 1, 6, 1),
    Sketcher.Constraint("Tangent", 6, 2, 7, 2),
    Sketcher.Constraint("Tangent", 7, 1, 0, 1),
    Sketcher.Constraint("Tangent", 8, 2, 9, 1),
    Sketcher.Constraint("Tangent", 9, 2, 10, 1),
    Sketcher.Constraint("Tangent", 10, 2, 11, 1),
    Sketcher.Constraint("Tangent", 11, 2, 12, 1),
    Sketcher.Constraint("Tangent", 12, 2, 13, 1),
    Sketcher.Constraint("Tangent", 13, 2, 14, 1),
    Sketcher.Constraint("Tangent", 14, 2, 15, 1),
    Sketcher.Constraint("Tangent", 15, 2, 8, 1),
    Sketcher.Constraint("Horizontal", 0),
    Sketcher.Constraint("Vertical", 2),
    Sketcher.Constraint("Horizontal", 4),
    Sketcher.Constraint("Vertical", 6),
    Sketcher.Constraint("Vertical", 8),
    Sketcher.Constraint("Horizontal", 10),
    Sketcher.Constraint("Vertical", 12),
    Sketcher.Constraint("Horizontal", 14),
    Sketcher.Constraint("Coincident", 9, 3, 1, 3),
    Sketcher.Constraint("Coincident", 11, 3, 7, 3),
    Sketcher.Constraint("Coincident", 13, 3, 5, 3),
    Sketcher.Constraint("Equal", 1, 3),
    Sketcher.Constraint("Equal", 3, 5),
    Sketcher.Constraint("Equal", 5, 7),
    Sketcher.Constraint("Equal", 13, 15),
    Sketcher.Constraint("Symmetric", 1, 3, 5, 3, -1, 1),
    Sketcher.Constraint("Radius", 9, Q("8 mm")),
    Sketcher.Constraint("Radius", 1, Q("8.5 mm")),
    Sketcher.Constraint("DistanceY", 2, 2, 2, 1, Q("49 mm")),
    Sketcher.Constraint("DistanceX", 0, 1, 0, 2, Q("60.7 mm")),
])
pad7 = body.newObject("PartDesign::Pad", "Pad006")
pad7.Profile = sketch9
pad7.Length = 18

sketch10 = body.newObject("Sketcher::SketchObject", "Sketch009")
sketch10.AttachmentSupport = (doc.getObject("XZ_Plane"), [""])
sketch10.MapMode = "FlatFace"
sketch10.AttachmentOffset = App.Placement(Vector(0, 0, -18), App.Rotation())
sketch10.addGeometry([
    Part.LineSegment(Vector(-30, 32, 0), Vector(30, 32, 0)),
    Part.ArcOfCircle(Part.Circle(Vector(30, 24, 0), Vector(0, 0, 1), 7), math.radians(0), math.radians(90)),
    Part.LineSegment(Vector(37, 24, 0), Vector(37, -24, 0)),
    Part.ArcOfCircle(Part.Circle(Vector(30, -24, 0), Vector(0, 0, 1), 7), math.radians(-90), math.radians(0)),
    Part.LineSegment(Vector(30, -32, 0), Vector(-30, -32, 0)),
    Part.ArcOfCircle(Part.Circle(Vector(-30, -24, 0), Vector(0, 0, 1), 7), math.radians(-180), math.radians(-90)),
    Part.LineSegment(Vector(-37, -24, 0), Vector(-37, 24, 0)),
    Part.ArcOfCircle(Part.Circle(Vector(-30, 24, 0), Vector(0, 0, 1), 7), math.radians(90), math.radians(180)),
    Part.LineSegment(Vector(-37, 24, 0), Vector(-37, -24, 0)),
    Part.ArcOfCircle(Part.Circle(Vector(-30, -25, 0), Vector(0, 0, 1), 7), math.radians(180), math.radians(270)),
    Part.LineSegment(Vector(-30, -31, 0), Vector(30, -31, 0)),
    Part.ArcOfCircle(Part.Circle(Vector(30, -25, 0), Vector(0, 0, 1), 7), math.radians(-90), math.radians(0)),
    Part.LineSegment(Vector(37, -24, 0), Vector(37, 24, 0)),
    Part.ArcOfCircle(Part.Circle(Vector(30, 25, 0), Vector(0, 0, 1), 7), math.radians(0), math.radians(90)),
    Part.LineSegment(Vector(30, 31, 0), Vector(-30, 31, 0)),
    Part.ArcOfCircle(Part.Circle(Vector(-30, 25, 0), Vector(0, 0, 1), 7), math.radians(90), math.radians(180)),
], False)
sketch10.addConstraint([
    Sketcher.Constraint("Tangent", 0, 2, 1, 2),
    Sketcher.Constraint("Tangent", 1, 1, 2, 1),
    Sketcher.Constraint("Tangent", 2, 2, 3, 2),
    Sketcher.Constraint("Tangent", 3, 1, 4, 1),
    Sketcher.Constraint("Tangent", 4, 2, 5, 2),
    Sketcher.Constraint("Tangent", 5, 1, 6, 1),
    Sketcher.Constraint("Tangent", 6, 2, 7, 2),
    Sketcher.Constraint("Tangent", 7, 1, 0, 1),
    Sketcher.Constraint("Tangent", 8, 2, 9, 1),
    Sketcher.Constraint("Tangent", 9, 2, 10, 1),
    Sketcher.Constraint("Tangent", 10, 2, 11, 1),
    Sketcher.Constraint("Tangent", 11, 2, 12, 1),
    Sketcher.Constraint("Tangent", 12, 2, 13, 1),
    Sketcher.Constraint("Tangent", 13, 2, 14, 1),
    Sketcher.Constraint("Tangent", 14, 2, 15, 1),
    Sketcher.Constraint("Tangent", 15, 2, 8, 1),
    Sketcher.Constraint("Horizontal", 0),
    Sketcher.Constraint("Vertical", 2),
    Sketcher.Constraint("Horizontal", 4),
    Sketcher.Constraint("Vertical", 6),
    Sketcher.Constraint("Vertical", 8),
    Sketcher.Constraint("Horizontal", 10),
    Sketcher.Constraint("Vertical", 12),
    Sketcher.Constraint("Horizontal", 14),
    Sketcher.Constraint("Coincident", 9, 3, 5, 3),
    Sketcher.Constraint("Coincident", 11, 3, 3, 3),
    Sketcher.Constraint("Coincident", 13, 3, 1, 3),
    Sketcher.Constraint("Equal", 1, 3),
    Sketcher.Constraint("Equal", 3, 5),
    Sketcher.Constraint("Equal", 5, 7),
    Sketcher.Constraint("Equal", 13, 15),
    Sketcher.Constraint("Symmetric", 1, 3, 5, 3, -1, 1),
    Sketcher.Constraint("Radius", 1, Q("7 mm")),
    Sketcher.Constraint("Radius", 9, Q("6.6 mm")),
    Sketcher.Constraint("DistanceY", 2, 2, 2, 1, Q("49 mm")),
    Sketcher.Constraint("DistanceX", 0, 1, 0, 2, Q("60.7 mm")),
])
pad8 = body.newObject("PartDesign::Pad", "Pad007")
pad8.Profile = sketch10
pad8.Length = 0.3
pad8.Reversed = True

sketch11 = body.newObject("Sketcher::SketchObject", "Sketch010")
sketch11.AttachmentSupport = (doc.getObject("XY_Plane"), [""])
sketch11.MapMode = "FlatFace"
sketch11.AttachmentOffset = App.Placement(Vector(0, 0, 23.2), App.Rotation())
sketch11.addGeometry(Part.Circle(Vector(-27.4, 10.5, 0), Vector(0, 0, 1), 1.1), False)
sketch11.addConstraint([
    Sketcher.Constraint("Diameter", 0, Q("2.2 mm")),
    Sketcher.Constraint("DistanceY", -1, 1, 0, 3, Q("10.5 mm")),
    Sketcher.Constraint("DistanceX", 0, 3, -1, 1, Q("27.35 mm")),
])
pocket3 = body.newObject("PartDesign::Pocket", "Pocket002")
pocket3.Profile = sketch11
pocket3.Length = 14
pocket3.Reversed = True

doc.recompute()
